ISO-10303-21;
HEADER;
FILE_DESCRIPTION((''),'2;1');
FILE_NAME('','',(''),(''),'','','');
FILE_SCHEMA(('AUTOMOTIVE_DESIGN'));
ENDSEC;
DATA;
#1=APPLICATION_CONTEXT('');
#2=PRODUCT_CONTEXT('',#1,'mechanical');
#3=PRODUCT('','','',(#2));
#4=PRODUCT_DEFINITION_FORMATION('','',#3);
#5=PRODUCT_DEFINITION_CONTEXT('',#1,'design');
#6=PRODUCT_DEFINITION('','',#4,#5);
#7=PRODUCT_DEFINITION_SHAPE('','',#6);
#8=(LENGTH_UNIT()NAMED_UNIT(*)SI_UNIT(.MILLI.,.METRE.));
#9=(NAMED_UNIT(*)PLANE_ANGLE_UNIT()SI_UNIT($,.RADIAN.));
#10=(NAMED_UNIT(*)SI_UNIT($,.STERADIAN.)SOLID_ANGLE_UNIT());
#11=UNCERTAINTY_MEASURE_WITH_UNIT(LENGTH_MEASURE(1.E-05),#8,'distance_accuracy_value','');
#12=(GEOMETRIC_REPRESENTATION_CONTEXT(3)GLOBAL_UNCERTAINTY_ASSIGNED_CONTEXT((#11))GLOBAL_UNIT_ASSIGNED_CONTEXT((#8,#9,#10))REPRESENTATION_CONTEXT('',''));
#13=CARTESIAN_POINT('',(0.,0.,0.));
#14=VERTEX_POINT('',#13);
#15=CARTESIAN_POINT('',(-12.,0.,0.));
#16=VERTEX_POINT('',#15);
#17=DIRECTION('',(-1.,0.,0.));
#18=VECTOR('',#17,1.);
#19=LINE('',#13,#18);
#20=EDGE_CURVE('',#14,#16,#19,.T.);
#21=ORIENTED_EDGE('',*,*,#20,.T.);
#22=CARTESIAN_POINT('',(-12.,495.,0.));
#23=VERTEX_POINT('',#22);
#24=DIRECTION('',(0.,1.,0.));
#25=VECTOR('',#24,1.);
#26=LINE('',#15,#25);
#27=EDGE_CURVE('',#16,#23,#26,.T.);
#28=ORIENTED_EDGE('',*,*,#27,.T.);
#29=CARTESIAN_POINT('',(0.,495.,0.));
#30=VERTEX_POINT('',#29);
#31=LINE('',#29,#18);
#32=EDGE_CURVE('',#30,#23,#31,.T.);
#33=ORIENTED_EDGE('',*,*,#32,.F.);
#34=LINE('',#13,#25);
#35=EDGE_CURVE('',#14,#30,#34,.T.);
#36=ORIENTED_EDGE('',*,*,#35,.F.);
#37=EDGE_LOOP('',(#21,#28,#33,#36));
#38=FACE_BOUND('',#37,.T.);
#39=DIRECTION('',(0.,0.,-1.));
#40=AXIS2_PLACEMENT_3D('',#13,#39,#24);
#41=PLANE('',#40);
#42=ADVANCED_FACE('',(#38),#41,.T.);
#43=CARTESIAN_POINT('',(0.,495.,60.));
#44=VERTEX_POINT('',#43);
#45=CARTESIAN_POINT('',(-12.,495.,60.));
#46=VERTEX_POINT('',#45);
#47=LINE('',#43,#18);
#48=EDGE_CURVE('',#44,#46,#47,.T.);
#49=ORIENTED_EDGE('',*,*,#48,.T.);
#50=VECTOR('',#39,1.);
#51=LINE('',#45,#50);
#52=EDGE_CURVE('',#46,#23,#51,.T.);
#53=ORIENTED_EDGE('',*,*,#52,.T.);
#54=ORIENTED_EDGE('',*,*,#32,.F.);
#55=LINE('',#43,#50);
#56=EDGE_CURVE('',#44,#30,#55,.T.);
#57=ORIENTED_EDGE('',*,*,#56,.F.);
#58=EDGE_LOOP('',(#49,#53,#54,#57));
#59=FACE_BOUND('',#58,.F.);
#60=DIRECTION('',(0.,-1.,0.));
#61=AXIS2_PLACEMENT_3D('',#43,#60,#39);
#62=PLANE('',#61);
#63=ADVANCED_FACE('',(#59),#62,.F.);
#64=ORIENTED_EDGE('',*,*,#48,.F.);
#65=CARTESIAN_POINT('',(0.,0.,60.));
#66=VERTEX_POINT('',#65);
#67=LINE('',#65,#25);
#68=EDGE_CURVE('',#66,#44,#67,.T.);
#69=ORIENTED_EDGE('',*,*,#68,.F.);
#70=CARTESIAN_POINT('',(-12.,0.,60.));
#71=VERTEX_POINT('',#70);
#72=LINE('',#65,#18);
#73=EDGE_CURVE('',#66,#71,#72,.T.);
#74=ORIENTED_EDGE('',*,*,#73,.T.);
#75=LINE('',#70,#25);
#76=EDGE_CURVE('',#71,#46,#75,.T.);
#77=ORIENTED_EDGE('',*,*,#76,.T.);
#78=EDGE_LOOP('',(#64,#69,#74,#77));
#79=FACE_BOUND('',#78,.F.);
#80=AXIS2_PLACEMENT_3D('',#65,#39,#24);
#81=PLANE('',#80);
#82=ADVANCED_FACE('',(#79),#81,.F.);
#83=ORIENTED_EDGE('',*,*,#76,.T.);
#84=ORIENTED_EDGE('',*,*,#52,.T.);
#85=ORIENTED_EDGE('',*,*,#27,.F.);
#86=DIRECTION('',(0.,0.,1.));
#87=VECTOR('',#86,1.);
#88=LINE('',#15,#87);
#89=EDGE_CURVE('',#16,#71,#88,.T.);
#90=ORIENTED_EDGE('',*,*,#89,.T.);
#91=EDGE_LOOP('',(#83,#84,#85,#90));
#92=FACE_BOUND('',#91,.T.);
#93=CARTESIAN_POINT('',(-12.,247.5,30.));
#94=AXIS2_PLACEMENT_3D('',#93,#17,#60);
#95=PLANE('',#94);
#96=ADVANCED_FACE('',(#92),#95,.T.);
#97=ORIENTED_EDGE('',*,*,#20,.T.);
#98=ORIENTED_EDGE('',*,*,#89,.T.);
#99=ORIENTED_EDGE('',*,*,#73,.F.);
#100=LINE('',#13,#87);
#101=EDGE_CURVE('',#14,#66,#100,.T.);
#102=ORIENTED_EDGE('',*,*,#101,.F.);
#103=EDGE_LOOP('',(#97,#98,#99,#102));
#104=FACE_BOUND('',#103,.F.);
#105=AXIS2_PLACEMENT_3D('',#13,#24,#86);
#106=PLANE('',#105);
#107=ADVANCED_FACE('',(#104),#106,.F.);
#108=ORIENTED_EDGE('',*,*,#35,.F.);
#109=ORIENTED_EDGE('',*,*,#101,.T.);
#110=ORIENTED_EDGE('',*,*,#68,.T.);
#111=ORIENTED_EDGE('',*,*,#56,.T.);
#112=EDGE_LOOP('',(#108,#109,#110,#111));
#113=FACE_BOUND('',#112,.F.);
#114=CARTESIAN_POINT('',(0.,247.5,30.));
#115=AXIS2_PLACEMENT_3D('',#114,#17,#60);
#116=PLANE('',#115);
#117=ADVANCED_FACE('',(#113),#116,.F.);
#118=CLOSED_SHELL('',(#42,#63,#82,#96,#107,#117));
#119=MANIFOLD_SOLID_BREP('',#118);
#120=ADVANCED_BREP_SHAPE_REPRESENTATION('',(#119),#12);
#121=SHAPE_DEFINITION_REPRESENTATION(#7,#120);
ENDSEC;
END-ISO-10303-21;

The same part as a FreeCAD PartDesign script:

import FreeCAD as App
import Part
import Sketcher

V = App.Vector
Q = App.Units.Quantity


def add_polygon(sketch, points):
    """Adds a closed chain of lines whose ends are joined by coincident constraints."""
    first, n = sketch.GeometryCount, len(points)
    for a, b in zip(points, points[1:] + points[:1]):
        sketch.addGeometry(Part.LineSegment(App.Vector(*a, 0), App.Vector(*b, 0)), False)
    for i in range(n):
        sketch.addConstraint(Sketcher.Constraint("Coincident", first + i, 2, first + (i + 1) % n, 1))

doc = App.newDocument("Part")
body = doc.addObject("PartDesign::Body", "Body")

# Sketch on YZ plane
sketch1 = doc.addObject("Sketcher::SketchObject", "Sketch")
body.addObject(sketch1)
sketch1.AttachmentSupport = (doc.YZ_Plane, [""])
sketch1.MapMode = "FlatFace"
add_polygon(sketch1, [(0, 60), (0, 0), (495, 0), (495, 60)])  # lines 0-3
sketch1.addConstraint([
    Sketcher.Constraint("Vertical", 0),
    Sketcher.Constraint("Horizontal", 1),
    Sketcher.Constraint("Vertical", 2),
    Sketcher.Constraint("Horizontal", 3),
    Sketcher.Constraint("Coincident", 0, 2, -1, 1),
    Sketcher.Constraint("DistanceX", 1, 1, 1, 2, Q("495 mm")),
    Sketcher.Constraint("DistanceY", 0, 2, 0, 1, Q("60 mm")),
])
pad1 = doc.addObject("PartDesign::Pad", "Pad")
body.addObject(pad1)
pad1.Profile = sketch1
pad1.Length = 12
pad1.Reversed = True

doc.recompute()
